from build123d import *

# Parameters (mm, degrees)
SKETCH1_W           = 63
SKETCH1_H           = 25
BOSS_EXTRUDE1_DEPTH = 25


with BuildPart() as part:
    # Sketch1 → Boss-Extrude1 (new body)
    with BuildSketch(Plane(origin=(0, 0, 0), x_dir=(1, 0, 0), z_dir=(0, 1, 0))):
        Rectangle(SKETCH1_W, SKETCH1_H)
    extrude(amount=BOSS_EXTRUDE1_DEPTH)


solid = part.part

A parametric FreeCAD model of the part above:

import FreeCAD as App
import Part
import Sketcher
from FreeCAD import Vector

doc = App.newDocument("Part")
body = doc.addObject("PartDesign::Body", "Body")

sketch1 = doc.addObject("Sketcher::SketchObject", "Sketch")
body.addObject(sketch1)
sketch1.AttachmentSupport = (doc.XZ_Plane, [""])
sketch1.MapMode = "FlatFace"
sketch1.addGeometry([
    Part.LineSegment(Vector(-32, -12, 0), Vector(-32, 12, 0)),
    Part.LineSegment(Vector(-32, 12, 0), Vector(32, 12, 0)),
    Part.LineSegment(Vector(32, 12, 0), Vector(32, -12, 0)),
    Part.LineSegment(Vector(32, -12, 0), Vector(-32, -12, 0)),
], False)
sketch1.addConstraint([
    Sketcher.Constraint("Coincident", 0, 2, 1, 1),
    Sketcher.Constraint("Coincident", 1, 2, 2, 1),
    Sketcher.Constraint("Coincident", 2, 2, 3, 1),
    Sketcher.Constraint("Coincident", 3, 2, 0, 1),
    Sketcher.Constraint("Vertical", 0),
    Sketcher.Constraint("Horizontal", 1),
    Sketcher.Constraint("Vertical", 2),
    Sketcher.Constraint("Horizontal", 3),
    Sketcher.Constraint("Symmetric", 0, 2, 2, 2, -1, 1),
    Sketcher.Constraint("DistanceX", 1, 1, 1, 2, 63.0),
    Sketcher.Constraint("DistanceY", 0, 1, 0, 2, 25.0),
])
pad1 = doc.addObject("PartDesign::Pad", "Pad")
body.addObject(pad1)
pad1.Profile = sketch1
pad1.Length = 25
pad1.Reversed = True

doc.recompute()
